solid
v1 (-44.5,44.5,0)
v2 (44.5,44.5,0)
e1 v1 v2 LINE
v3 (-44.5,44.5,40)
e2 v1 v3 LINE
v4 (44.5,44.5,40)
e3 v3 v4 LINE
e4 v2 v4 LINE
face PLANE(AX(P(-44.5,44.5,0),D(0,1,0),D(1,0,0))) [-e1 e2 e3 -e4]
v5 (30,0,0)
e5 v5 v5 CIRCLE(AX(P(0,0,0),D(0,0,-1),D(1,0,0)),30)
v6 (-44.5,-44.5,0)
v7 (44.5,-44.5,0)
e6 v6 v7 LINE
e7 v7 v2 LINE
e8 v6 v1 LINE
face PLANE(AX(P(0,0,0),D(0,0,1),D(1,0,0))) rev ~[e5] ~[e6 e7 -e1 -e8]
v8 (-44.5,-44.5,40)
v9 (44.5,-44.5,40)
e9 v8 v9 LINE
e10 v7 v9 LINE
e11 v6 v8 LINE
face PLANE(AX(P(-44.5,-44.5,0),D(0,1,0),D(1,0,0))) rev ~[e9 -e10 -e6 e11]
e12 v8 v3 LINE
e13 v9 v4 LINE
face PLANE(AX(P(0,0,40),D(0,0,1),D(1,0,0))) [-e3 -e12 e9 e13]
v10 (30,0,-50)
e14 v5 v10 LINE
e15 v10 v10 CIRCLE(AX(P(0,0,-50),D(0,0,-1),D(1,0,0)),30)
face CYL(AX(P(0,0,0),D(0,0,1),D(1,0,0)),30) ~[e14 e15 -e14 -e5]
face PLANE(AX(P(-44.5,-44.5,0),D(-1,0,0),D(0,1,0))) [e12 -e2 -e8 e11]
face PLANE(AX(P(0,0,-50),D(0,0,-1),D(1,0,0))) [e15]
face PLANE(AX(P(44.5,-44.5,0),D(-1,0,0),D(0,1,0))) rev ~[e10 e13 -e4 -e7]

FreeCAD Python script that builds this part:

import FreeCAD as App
import Part
import Sketcher
from FreeCAD import Vector

doc = App.newDocument("Part")
body = doc.addObject("PartDesign::Body", "Body")

sketch1 = body.newObject("Sketcher::SketchObject", "Sketch")
sketch1.AttachmentSupport = (doc.getObject("XY_Plane"), [""])
sketch1.MapMode = "FlatFace"
sketch1.addGeometry(Part.LineSegment(Vector(-44, 44, 0), Vector(-44, -44, 0)), False)
sketch1.addGeometry(Part.LineSegment(Vector(-44, -44, 0), Vector(44, -44, 0)), False)
sketch1.addGeometry(Part.LineSegment(Vector(44, -44, 0), Vector(44, 44, 0)), False)
sketch1.addGeometry(Part.LineSegment(Vector(44, 44, 0), Vector(-44, 44, 0)), False)
sketch1.addConstraint(Sketcher.Constraint("Coincident", 0, 2, 1, 1))
sketch1.addConstraint(Sketcher.Constraint("Coincident", 1, 2, 2, 1))
sketch1.addConstraint(Sketcher.Constraint("Coincident", 2, 2, 3, 1))
sketch1.addConstraint(Sketcher.Constraint("Coincident", 3, 2, 0, 1))
sketch1.addConstraint(Sketcher.Constraint("Vertical", 0))
sketch1.addConstraint(Sketcher.Constraint("Horizontal", 1))
sketch1.addConstraint(Sketcher.Constraint("Vertical", 2))
sketch1.addConstraint(Sketcher.Constraint("Horizontal", 3))
sketch1.addConstraint(Sketcher.Constraint("Symmetric", 0, 2, 2, 2, -1, 1))
sketch1.addConstraint(Sketcher.Constraint("Equal", 3, 0))
sketch1.addConstraint(Sketcher.Constraint("DistanceX", 1, 1, 1, 2, 89.0))
pad1 = body.newObject("PartDesign::Pad", "Pad")
pad1.Profile = sketch1
pad1.Length = 40

sketch2 = body.newObject("Sketcher::SketchObject", "Sketch001")
sketch2.AttachmentSupport = (doc.getObject("XY_Plane"), [""])
sketch2.MapMode = "FlatFace"
sketch2.addGeometry(Part.Circle(Vector(0, 0, 0), Vector(0, 0, 1), 30), False)
sketch2.addConstraint(Sketcher.Constraint("Coincident", 0, 3, -1, 1))
sketch2.addConstraint(Sketcher.Constraint("Diameter", 0, 60.0))
pad2 = body.newObject("PartDesign::Pad", "Pad001")
pad2.Profile = sketch2
pad2.Length = 50
pad2.Reversed = True

doc.recompute()
